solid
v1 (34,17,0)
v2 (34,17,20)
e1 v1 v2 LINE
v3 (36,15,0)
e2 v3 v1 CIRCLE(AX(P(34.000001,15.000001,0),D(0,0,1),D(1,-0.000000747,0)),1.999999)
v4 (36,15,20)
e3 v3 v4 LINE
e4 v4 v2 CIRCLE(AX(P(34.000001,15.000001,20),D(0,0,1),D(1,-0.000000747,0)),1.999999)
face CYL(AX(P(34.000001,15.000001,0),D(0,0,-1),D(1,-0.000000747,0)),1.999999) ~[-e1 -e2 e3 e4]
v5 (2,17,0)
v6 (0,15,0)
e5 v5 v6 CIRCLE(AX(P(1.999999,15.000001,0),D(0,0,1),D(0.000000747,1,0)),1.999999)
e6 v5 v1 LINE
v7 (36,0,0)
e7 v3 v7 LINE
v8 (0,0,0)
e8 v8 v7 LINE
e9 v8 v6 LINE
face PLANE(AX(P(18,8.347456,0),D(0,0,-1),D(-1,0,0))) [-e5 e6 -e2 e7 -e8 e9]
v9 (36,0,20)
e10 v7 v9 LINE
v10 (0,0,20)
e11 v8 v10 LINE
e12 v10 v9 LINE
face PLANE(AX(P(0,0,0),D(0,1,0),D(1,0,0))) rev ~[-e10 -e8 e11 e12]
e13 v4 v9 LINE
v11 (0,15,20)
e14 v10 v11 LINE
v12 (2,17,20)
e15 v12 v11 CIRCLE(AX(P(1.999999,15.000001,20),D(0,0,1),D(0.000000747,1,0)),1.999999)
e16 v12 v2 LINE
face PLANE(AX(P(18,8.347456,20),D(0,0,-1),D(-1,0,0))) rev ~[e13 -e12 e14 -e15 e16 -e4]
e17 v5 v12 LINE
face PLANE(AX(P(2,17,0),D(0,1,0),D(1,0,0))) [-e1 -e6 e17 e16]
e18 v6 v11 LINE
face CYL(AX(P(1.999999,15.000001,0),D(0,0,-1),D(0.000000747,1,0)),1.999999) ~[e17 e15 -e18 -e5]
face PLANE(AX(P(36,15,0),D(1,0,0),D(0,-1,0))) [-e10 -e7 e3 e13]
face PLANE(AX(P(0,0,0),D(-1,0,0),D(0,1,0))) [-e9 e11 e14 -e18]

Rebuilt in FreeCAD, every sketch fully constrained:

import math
import FreeCAD as App
import Part
import Sketcher
from FreeCAD import Vector

doc = App.newDocument("Part")
body = doc.addObject("PartDesign::Body", "Body")

sketch1 = body.newObject("Sketcher::SketchObject", "Sketch")
sketch1.AttachmentSupport = (doc.getObject("XY_Plane"), [""])
sketch1.MapMode = "FlatFace"
sketch1.addGeometry(Part.LineSegment(Vector(0, 15, 0), Vector(0, 0, 0)), False)
sketch1.addGeometry(Part.LineSegment(Vector(0, 0, 0), Vector(36, 0, 0)), False)
sketch1.addGeometry(Part.LineSegment(Vector(36, 0, 0), Vector(36, 15, 0)), False)
sketch1.addGeometry(Part.ArcOfCircle(Part.Circle(Vector(34, 15, 0), Vector(0, 0, 1), 2), math.radians(0), math.radians(90)), False)
sketch1.addGeometry(Part.LineSegment(Vector(34, 17, 0), Vector(2, 17, 0)), False)
sketch1.addGeometry(Part.ArcOfCircle(Part.Circle(Vector(2, 15, 0), Vector(0, 0, 1), 2), math.radians(90), math.radians(180)), False)
sketch1.addConstraint(Sketcher.Constraint("Coincident", 0, 2, 1, 1))
sketch1.addConstraint(Sketcher.Constraint("Coincident", 1, 2, 2, 1))
sketch1.addConstraint(Sketcher.Constraint("Tangent", 2, 2, 3, 1))
sketch1.addConstraint(Sketcher.Constraint("Tangent", 3, 2, 4, 1))
sketch1.addConstraint(Sketcher.Constraint("Tangent", 4, 2, 5, 1))
sketch1.addConstraint(Sketcher.Constraint("Tangent", 5, 2, 0, 1))
sketch1.addConstraint(Sketcher.Constraint("Vertical", 0))
sketch1.addConstraint(Sketcher.Constraint("Horizontal", 1))
sketch1.addConstraint(Sketcher.Constraint("Vertical", 2))
sketch1.addConstraint(Sketcher.Constraint("Horizontal", 4))
sketch1.addConstraint(Sketcher.Constraint("Coincident", 0, 2, -1, 1))
sketch1.addConstraint(Sketcher.Constraint("Equal", 3, 5))
sketch1.addConstraint(Sketcher.Constraint("Radius", 3, 1.999999))
sketch1.addConstraint(Sketcher.Constraint("DistanceX", 1, 1, 1, 2, 36.0))
sketch1.addConstraint(Sketcher.Constraint("DistanceY", 0, 2, 0, 1, 15.0))
pad1 = body.newObject("PartDesign::Pad", "Pad")
pad1.Profile = sketch1
pad1.Length = 20

doc.recompute()
